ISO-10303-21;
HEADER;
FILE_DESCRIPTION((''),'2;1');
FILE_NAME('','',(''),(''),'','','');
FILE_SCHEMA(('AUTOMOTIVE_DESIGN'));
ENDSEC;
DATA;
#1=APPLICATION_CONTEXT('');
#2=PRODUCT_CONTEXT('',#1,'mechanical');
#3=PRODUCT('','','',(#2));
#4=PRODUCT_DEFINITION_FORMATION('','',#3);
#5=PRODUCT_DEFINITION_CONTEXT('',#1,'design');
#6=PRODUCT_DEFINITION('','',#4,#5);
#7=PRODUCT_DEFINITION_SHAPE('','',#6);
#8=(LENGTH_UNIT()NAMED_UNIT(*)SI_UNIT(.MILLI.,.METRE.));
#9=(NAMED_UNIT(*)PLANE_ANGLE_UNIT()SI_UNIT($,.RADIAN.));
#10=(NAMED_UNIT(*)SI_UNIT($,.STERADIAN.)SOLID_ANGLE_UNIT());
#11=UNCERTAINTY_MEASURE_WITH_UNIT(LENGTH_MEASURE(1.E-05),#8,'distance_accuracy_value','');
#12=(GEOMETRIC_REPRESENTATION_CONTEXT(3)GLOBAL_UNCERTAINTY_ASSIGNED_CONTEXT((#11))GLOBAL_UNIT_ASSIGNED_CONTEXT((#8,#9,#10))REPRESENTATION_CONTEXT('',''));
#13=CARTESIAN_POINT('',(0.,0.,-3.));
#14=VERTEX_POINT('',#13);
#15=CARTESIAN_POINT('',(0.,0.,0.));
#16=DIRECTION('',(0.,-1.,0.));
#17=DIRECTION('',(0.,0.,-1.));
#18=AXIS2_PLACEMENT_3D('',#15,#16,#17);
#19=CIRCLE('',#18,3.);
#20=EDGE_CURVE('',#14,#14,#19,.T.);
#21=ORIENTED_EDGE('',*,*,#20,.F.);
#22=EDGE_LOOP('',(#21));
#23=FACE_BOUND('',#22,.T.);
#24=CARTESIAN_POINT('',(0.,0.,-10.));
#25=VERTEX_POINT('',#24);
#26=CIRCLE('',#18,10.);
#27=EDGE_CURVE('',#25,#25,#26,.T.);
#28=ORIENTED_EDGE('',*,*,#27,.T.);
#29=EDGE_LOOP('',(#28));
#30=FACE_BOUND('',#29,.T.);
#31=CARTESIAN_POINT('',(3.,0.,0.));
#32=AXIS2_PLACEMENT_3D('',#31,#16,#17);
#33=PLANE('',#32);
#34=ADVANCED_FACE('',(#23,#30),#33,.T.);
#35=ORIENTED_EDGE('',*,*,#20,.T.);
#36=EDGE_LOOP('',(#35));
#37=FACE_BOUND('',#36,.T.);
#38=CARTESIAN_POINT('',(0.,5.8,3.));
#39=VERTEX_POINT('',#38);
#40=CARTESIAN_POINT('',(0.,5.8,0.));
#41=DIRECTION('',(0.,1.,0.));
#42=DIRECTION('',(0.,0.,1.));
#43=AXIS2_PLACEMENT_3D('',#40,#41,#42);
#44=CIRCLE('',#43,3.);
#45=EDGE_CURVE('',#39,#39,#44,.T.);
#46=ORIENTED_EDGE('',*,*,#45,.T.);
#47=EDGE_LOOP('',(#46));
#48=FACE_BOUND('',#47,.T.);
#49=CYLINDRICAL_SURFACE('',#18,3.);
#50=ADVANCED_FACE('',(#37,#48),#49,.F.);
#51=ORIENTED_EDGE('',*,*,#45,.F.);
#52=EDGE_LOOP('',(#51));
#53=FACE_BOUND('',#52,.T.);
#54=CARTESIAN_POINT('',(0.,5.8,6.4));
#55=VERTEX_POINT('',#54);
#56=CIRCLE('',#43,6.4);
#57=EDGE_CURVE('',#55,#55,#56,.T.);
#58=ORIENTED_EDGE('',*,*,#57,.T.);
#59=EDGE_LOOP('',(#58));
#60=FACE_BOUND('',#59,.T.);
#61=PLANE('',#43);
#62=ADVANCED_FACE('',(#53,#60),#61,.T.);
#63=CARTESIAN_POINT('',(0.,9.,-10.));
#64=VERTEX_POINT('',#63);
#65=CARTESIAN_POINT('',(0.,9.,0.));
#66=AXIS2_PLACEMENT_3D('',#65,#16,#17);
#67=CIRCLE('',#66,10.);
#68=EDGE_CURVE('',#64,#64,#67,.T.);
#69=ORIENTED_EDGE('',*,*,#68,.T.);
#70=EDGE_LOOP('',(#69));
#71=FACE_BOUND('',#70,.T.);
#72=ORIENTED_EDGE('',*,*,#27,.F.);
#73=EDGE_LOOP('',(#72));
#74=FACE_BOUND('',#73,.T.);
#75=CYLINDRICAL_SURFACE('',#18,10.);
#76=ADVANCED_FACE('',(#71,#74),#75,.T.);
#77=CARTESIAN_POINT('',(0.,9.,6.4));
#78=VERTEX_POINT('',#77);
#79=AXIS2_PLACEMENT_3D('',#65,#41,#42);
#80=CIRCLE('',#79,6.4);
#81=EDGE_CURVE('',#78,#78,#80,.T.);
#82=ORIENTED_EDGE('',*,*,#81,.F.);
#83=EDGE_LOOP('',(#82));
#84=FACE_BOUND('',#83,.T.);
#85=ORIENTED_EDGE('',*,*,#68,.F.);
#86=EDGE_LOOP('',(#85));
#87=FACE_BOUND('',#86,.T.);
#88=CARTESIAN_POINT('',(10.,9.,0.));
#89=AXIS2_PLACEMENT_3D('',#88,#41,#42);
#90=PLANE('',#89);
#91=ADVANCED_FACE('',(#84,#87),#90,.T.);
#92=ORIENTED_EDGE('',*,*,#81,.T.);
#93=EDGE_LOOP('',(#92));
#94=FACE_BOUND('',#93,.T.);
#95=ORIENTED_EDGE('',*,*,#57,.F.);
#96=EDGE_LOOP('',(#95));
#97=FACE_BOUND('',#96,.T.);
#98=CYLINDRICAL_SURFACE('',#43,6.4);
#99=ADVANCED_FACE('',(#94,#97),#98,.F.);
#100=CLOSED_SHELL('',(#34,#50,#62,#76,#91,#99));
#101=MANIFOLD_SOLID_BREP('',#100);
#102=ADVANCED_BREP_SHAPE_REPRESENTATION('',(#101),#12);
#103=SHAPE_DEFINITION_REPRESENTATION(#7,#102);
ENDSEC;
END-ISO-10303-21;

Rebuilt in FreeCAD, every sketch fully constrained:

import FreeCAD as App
import Part
import Sketcher
Q = App.Units.Quantity

doc = App.newDocument("Part")
body = doc.addObject("PartDesign::Body", "Body")

sketch1 = body.newObject("Sketcher::SketchObject", "Sketch")
sketch1.AttachmentSupport = (doc.getObject("XY_Plane"), [""])
sketch1.MapMode = "FlatFace"
sketch1.addGeometry([
    Part.LineSegment(App.Vector(3, 9, 0), App.Vector(3, 0, 0)),
    Part.LineSegment(App.Vector(3, 0, 0), App.Vector(10, 0, 0)),
    Part.LineSegment(App.Vector(10, 0, 0), App.Vector(10, 9, 0)),
    Part.LineSegment(App.Vector(10, 9, 0), App.Vector(3, 9, 0)),
], False)
sketch1.addConstraint([
    Sketcher.Constraint("Coincident", 0, 2, 1, 1),
    Sketcher.Constraint("Coincident", 1, 2, 2, 1),
    Sketcher.Constraint("Coincident", 2, 2, 3, 1),
    Sketcher.Constraint("Coincident", 3, 2, 0, 1),
    Sketcher.Constraint("Vertical", 0),
    Sketcher.Constraint("Horizontal", 1),
    Sketcher.Constraint("Vertical", 2),
    Sketcher.Constraint("Horizontal", 3),
    Sketcher.Constraint("PointOnObject", 0, 2, -1),
    Sketcher.Constraint("DistanceX", 1, 1, 1, 2, Q("7 mm")),
    Sketcher.Constraint("DistanceY", 0, 2, 0, 1, Q("9 mm")),
    Sketcher.Constraint("DistanceX", -1, 1, 0, 2, Q("3 mm")),
])
revolution = body.newObject("PartDesign::Revolution", "Revolution")
revolution.Profile = sketch1
revolution.ReferenceAxis = (sketch1, ["V_Axis"])
revolution.Angle = 360

sketch2 = body.newObject("Sketcher::SketchObject", "Sketch001")
sketch2.AttachmentSupport = (doc.getObject("XZ_Plane"), [""])
sketch2.MapMode = "FlatFace"
sketch2.AttachmentOffset = App.Placement(App.Vector(0, 0, -9), App.Rotation())
sketch2.addGeometry(Part.Circle(App.Vector(0, 0, 0), App.Vector(0, 0, 1), 6), False)
sketch2.addConstraint([
    Sketcher.Constraint("Coincident", 0, 3, -1, 1),
    Sketcher.Constraint("Diameter", 0, Q("12.8 mm")),
])
pocket1 = body.newObject("PartDesign::Pocket", "Pocket")
pocket1.Profile = sketch2
pocket1.Length = 3.2
pocket1.Reversed = True

doc.recompute()
